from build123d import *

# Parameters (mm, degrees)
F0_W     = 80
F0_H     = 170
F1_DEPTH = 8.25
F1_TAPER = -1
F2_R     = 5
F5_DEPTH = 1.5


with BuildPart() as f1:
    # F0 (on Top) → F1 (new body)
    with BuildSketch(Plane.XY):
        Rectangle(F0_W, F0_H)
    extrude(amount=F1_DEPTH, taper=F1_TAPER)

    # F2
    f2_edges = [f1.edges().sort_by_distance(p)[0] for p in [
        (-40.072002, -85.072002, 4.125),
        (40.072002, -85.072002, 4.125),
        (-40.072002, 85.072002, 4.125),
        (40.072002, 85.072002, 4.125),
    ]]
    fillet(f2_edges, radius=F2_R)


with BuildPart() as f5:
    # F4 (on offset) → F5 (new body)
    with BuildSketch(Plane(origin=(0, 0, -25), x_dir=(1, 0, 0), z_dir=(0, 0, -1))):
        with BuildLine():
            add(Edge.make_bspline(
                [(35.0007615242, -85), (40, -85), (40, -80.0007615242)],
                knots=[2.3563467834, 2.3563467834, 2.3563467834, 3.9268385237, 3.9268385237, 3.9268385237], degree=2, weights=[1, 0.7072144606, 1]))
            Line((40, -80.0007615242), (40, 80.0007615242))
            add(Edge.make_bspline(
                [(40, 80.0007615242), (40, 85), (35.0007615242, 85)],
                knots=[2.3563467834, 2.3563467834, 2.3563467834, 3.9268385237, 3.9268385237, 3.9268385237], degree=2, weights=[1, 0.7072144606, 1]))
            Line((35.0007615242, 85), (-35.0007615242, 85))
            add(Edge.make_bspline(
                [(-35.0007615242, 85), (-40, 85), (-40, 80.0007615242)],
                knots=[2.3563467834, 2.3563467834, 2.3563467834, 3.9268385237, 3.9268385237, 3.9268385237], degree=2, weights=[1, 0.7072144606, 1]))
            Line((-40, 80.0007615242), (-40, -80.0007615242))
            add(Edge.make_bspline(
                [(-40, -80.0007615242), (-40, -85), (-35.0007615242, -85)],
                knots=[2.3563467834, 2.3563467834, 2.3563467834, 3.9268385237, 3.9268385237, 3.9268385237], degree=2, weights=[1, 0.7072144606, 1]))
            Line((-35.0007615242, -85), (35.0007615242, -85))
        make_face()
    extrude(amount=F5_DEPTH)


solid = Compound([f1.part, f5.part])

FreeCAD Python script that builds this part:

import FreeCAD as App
import Part
import Sketcher
from FreeCAD import Vector


def edges_at(feature, points):
    """Names of the edges that pass closest to the given points."""
    edges = feature.Shape.Edges
    near = lambda p: min(range(len(edges)), key=lambda i: edges[i].distToShape(Part.Vertex(*p))[0])
    return sorted({f"Edge{near(p) + 1}" for p in points})

doc = App.newDocument("Part")
body = doc.addObject("PartDesign::Body", "Body")

# Sketch on XY plane
sketch1 = body.newObject("Sketcher::SketchObject", "Sketch")
sketch1.AttachmentSupport = (doc.getObject("XY_Plane"), [""])
sketch1.MapMode = "FlatFace"
sketch1.addGeometry([
    Part.LineSegment(Vector(-40, 85, 0), Vector(-40, -85, 0)),
    Part.LineSegment(Vector(-40, -85, 0), Vector(40, -85, 0)),
    Part.LineSegment(Vector(40, -85, 0), Vector(40, 85, 0)),
    Part.LineSegment(Vector(40, 85, 0), Vector(-40, 85, 0)),
], False)
sketch1.addConstraint([
    Sketcher.Constraint("Coincident", 0, 2, 1, 1),
    Sketcher.Constraint("Coincident", 1, 2, 2, 1),
    Sketcher.Constraint("Coincident", 2, 2, 3, 1),
    Sketcher.Constraint("Coincident", 3, 2, 0, 1),
    Sketcher.Constraint("Vertical", 0),
    Sketcher.Constraint("Horizontal", 1),
    Sketcher.Constraint("Vertical", 2),
    Sketcher.Constraint("Horizontal", 3),
    Sketcher.Constraint("Symmetric", 0, 2, 2, 2, -1, 1),
    Sketcher.Constraint("DistanceX", 1, 1, 1, 2, 80.0),
    Sketcher.Constraint("DistanceY", 0, 2, 0, 1, 170.0),
])
pad1 = body.newObject("PartDesign::Pad", "Pad")
pad1.Profile = sketch1
pad1.Length = 8.25
pad1.TaperAngle = 1
doc.recompute()

fillet = body.newObject("PartDesign::Fillet", "Fillet")
fillet.Base = (pad1, edges_at(pad1, [
    (-40.072, -85.072, 4.125),
    (40.072, -85.072, 4.125),
    (-40.072, 85.072, 4.125),
    (40.072, 85.072, 4.125),
]))
fillet.Radius = 5
body2 = doc.addObject("PartDesign::Body", "Body001")

# Sketch on XY plane
sketch2 = body2.newObject("Sketcher::SketchObject", "Sketch001")
sketch2.AttachmentSupport = (doc.getObject("XY_Plane001"), [""])
sketch2.MapMode = "FlatFace"
sketch2.AttachmentOffset = App.Placement(Vector(0, 0, -25), App.Rotation())
sketch2.addGeometry([
    Part.BSplineCurve([Vector(35.000762, 85, 0), Vector(40, 85, 0), Vector(40, 80.000762, 0)], [3, 3], [2.356346783, 3.926838524], False, 2, [1, 0.707214461, 1], False),  # 0
    Part.LineSegment(Vector(40, 80.000762, 0), Vector(40, -80.000762, 0)),  # 1
    Part.BSplineCurve([Vector(40, -80.000762, 0), Vector(40, -85, 0), Vector(35.000762, -85, 0)], [3, 3], [2.356346783, 3.926838524], False, 2, [1, 0.707214461, 1], False),  # 2
    Part.LineSegment(Vector(35.000762, -85, 0), Vector(-35.000762, -85, 0)),  # 3
    Part.BSplineCurve([Vector(-35.000762, -85, 0), Vector(-40, -85, 0), Vector(-40, -80.000762, 0)], [3, 3], [2.356346783, 3.926838524], False, 2, [1, 0.707214461, 1], False),  # 4
    Part.LineSegment(Vector(-40, -80.000762, 0), Vector(-40, 80.000762, 0)),  # 5
    Part.BSplineCurve([Vector(-40, 80.000762, 0), Vector(-40, 85, 0), Vector(-35.000762, 85, 0)], [3, 3], [2.356346783, 3.926838524], False, 2, [1, 0.707214461, 1], False),  # 6
    Part.LineSegment(Vector(-35.000762, 85, 0), Vector(35.000762, 85, 0)),  # 7
], False)
sketch2.addConstraint([
    Sketcher.Constraint("Block", 0),
    Sketcher.Constraint("Block", 2),
    Sketcher.Constraint("Block", 4),
    Sketcher.Constraint("Block", 6),
    Sketcher.Constraint("Coincident", 0, 2, 1, 1),
    Sketcher.Constraint("Coincident", 1, 2, 2, 1),
    Sketcher.Constraint("Coincident", 2, 2, 3, 1),
    Sketcher.Constraint("Coincident", 3, 2, 4, 1),
    Sketcher.Constraint("Coincident", 4, 2, 5, 1),
    Sketcher.Constraint("Coincident", 5, 2, 6, 1),
    Sketcher.Constraint("Coincident", 6, 2, 7, 1),
    Sketcher.Constraint("Coincident", 7, 2, 0, 1),
])
pad2 = body2.newObject("PartDesign::Pad", "Pad001")
pad2.Profile = sketch2
pad2.Length = 1.5
pad2.Reversed = True

doc.recompute()
